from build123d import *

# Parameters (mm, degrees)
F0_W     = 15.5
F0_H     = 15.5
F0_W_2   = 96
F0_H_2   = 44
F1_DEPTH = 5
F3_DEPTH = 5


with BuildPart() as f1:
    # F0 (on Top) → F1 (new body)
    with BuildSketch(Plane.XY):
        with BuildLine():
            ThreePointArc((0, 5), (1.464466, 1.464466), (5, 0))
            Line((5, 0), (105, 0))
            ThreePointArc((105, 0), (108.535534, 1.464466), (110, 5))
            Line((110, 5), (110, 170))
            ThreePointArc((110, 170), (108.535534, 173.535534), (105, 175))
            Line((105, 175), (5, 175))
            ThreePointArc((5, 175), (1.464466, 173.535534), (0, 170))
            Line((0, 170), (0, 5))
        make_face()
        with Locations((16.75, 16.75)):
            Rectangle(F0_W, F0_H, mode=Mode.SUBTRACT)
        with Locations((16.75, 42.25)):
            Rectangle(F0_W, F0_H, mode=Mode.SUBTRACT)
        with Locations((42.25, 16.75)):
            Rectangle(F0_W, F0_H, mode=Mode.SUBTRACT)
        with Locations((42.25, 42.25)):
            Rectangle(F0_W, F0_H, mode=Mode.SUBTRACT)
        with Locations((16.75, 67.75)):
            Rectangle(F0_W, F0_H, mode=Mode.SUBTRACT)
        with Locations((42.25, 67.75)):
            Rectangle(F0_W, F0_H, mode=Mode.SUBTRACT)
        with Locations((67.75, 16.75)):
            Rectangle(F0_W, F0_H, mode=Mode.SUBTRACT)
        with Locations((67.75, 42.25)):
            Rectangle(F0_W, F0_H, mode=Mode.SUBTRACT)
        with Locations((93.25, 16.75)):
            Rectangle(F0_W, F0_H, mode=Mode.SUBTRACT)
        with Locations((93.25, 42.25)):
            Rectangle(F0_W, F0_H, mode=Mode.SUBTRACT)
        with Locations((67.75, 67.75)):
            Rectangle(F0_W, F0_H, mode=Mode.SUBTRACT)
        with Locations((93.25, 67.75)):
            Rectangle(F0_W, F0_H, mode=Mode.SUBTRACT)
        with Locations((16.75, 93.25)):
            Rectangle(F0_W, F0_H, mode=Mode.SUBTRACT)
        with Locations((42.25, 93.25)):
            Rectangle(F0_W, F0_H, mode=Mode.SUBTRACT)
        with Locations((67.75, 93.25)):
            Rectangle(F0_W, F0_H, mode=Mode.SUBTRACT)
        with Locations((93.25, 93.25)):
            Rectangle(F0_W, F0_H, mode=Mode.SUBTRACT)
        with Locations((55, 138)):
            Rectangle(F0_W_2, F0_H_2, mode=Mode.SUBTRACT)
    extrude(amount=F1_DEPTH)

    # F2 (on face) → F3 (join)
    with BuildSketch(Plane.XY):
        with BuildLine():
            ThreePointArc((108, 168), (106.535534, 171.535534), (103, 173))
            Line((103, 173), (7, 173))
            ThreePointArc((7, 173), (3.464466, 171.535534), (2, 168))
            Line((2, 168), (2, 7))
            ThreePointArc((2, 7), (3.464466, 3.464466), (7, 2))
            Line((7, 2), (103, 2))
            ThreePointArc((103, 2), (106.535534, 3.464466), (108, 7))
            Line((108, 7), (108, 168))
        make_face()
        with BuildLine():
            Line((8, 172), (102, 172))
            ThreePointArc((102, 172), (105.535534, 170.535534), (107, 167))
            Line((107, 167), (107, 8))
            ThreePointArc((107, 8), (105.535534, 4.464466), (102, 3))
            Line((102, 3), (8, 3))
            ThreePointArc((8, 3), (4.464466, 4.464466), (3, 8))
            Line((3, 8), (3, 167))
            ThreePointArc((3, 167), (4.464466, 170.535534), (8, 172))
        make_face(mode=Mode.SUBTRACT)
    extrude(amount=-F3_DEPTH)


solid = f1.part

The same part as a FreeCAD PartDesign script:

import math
import FreeCAD as App
import Part
import Sketcher

V = App.Vector
Q = App.Units.Quantity


def add_polygon(sketch, points):
    """Adds a closed chain of lines whose ends are joined by coincident constraints."""
    first, n = sketch.GeometryCount, len(points)
    for a, b in zip(points, points[1:] + points[:1]):
        sketch.addGeometry(Part.LineSegment(App.Vector(*a, 0), App.Vector(*b, 0)), False)
    for i in range(n):
        sketch.addConstraint(Sketcher.Constraint("Coincident", first + i, 2, first + (i + 1) % n, 1))

doc = App.newDocument("Part")
body = doc.addObject("PartDesign::Body", "Body")

# Sketch on XY plane
sketch1 = body.newObject("Sketcher::SketchObject", "Sketch")
sketch1.AttachmentSupport = (doc.getObject("XY_Plane"), [""])
sketch1.MapMode = "FlatFace"
sketch1.addGeometry(Part.ArcOfCircle(Part.Circle(V(5, 5, 0), V(0, 0, 1), 5), math.radians(179.999996), math.radians(270.000004)), False)  # 0
sketch1.addGeometry(Part.LineSegment(V(5, 0, 0), V(105, 0, 0)), False)  # 1
sketch1.addGeometry(Part.ArcOfCircle(Part.Circle(V(105, 5, 0), V(0, 0, 1), 5), math.radians(-90.000004), math.radians(0.000004)), False)  # 2
sketch1.addGeometry(Part.LineSegment(V(110, 5, 0), V(110, 170, 0)), False)  # 3
sketch1.addGeometry(Part.ArcOfCircle(Part.Circle(V(105, 170, 0), V(0, 0, 1), 5), math.radians(-0.000004), math.radians(90.000004)), False)  # 4
sketch1.addGeometry(Part.LineSegment(V(105, 175, 0), V(5, 175, 0)), False)  # 5
sketch1.addGeometry(Part.ArcOfCircle(Part.Circle(V(5, 170, 0), V(0, 0, 1), 5), math.radians(89.999996), math.radians(180.000004)), False)  # 6
sketch1.addGeometry(Part.LineSegment(V(0, 170, 0), V(0, 5, 0)), False)  # 7
add_polygon(sketch1, [(24.5, 9), (9, 9), (9, 24.5), (24.5, 24.5)])  # lines 8-11
add_polygon(sketch1, [(24.5, 34.5), (9, 34.5), (9, 50), (24.5, 50)])  # lines 12-15
add_polygon(sketch1, [(50, 9), (34.5, 9), (34.5, 24.5), (50, 24.5)])  # lines 16-19
add_polygon(sketch1, [(50, 34.5), (34.5, 34.5), (34.5, 50), (50, 50)])  # lines 20-23
add_polygon(sketch1, [(24.5, 60), (9, 60), (9, 75.5), (24.5, 75.5)])  # lines 24-27
add_polygon(sketch1, [(50, 60), (34.5, 60), (34.5, 75.5), (50, 75.5)])  # lines 28-31
add_polygon(sketch1, [(75.5, 9), (60, 9), (60, 24.5), (75.5, 24.5)])  # lines 32-35
add_polygon(sketch1, [(75.5, 34.5), (60, 34.5), (60, 50), (75.5, 50)])  # lines 36-39
add_polygon(sketch1, [(101, 9), (85.5, 9), (85.5, 24.5), (101, 24.5)])  # lines 40-43
add_polygon(sketch1, [(101, 34.5), (85.5, 34.5), (85.5, 50), (101, 50)])  # lines 44-47
add_polygon(sketch1, [(75.5, 60), (60, 60), (60, 75.5), (75.5, 75.5)])  # lines 48-51
add_polygon(sketch1, [(101, 60), (85.5, 60), (85.5, 75.5), (101, 75.5)])  # lines 52-55
add_polygon(sketch1, [(24.5, 85.5), (9, 85.5), (9, 101), (24.5, 101)])  # lines 56-59
add_polygon(sketch1, [(50, 85.5), (34.5, 85.5), (34.5, 101), (50, 101)])  # lines 60-63
add_polygon(sketch1, [(75.5, 85.5), (60, 85.5), (60, 101), (75.5, 101)])  # lines 64-67
add_polygon(sketch1, [(101, 85.5), (85.5, 85.5), (85.5, 101), (101, 101)])  # lines 68-71
add_polygon(sketch1, [(103, 116), (7, 116), (7, 160), (103, 160)])  # lines 72-75
sketch1.addConstraint(Sketcher.Constraint("Tangent", 0, 2, 1, 1))
sketch1.addConstraint(Sketcher.Constraint("Tangent", 1, 2, 2, 1))
sketch1.addConstraint(Sketcher.Constraint("Tangent", 2, 2, 3, 1))
sketch1.addConstraint(Sketcher.Constraint("Tangent", 3, 2, 4, 1))
sketch1.addConstraint(Sketcher.Constraint("Tangent", 4, 2, 5, 1))
sketch1.addConstraint(Sketcher.Constraint("Tangent", 5, 2, 6, 1))
sketch1.addConstraint(Sketcher.Constraint("Tangent", 6, 2, 7, 1))
sketch1.addConstraint(Sketcher.Constraint("Tangent", 7, 2, 0, 1))
sketch1.addConstraint(Sketcher.Constraint("Horizontal", 1))
sketch1.addConstraint(Sketcher.Constraint("Vertical", 3))
sketch1.addConstraint(Sketcher.Constraint("Horizontal", 5))
sketch1.addConstraint(Sketcher.Constraint("Vertical", 7))
sketch1.addConstraint(Sketcher.Constraint("Horizontal", 8))
sketch1.addConstraint(Sketcher.Constraint("Vertical", 9))
sketch1.addConstraint(Sketcher.Constraint("Horizontal", 10))
sketch1.addConstraint(Sketcher.Constraint("Vertical", 11))
sketch1.addConstraint(Sketcher.Constraint("Horizontal", 12))
sketch1.addConstraint(Sketcher.Constraint("Vertical", 13))
sketch1.addConstraint(Sketcher.Constraint("Horizontal", 14))
sketch1.addConstraint(Sketcher.Constraint("Vertical", 15))
sketch1.addConstraint(Sketcher.Constraint("Horizontal", 16))
sketch1.addConstraint(Sketcher.Constraint("Vertical", 17))
sketch1.addConstraint(Sketcher.Constraint("Horizontal", 18))
sketch1.addConstraint(Sketcher.Constraint("Vertical", 19))
sketch1.addConstraint(Sketcher.Constraint("Horizontal", 20))
sketch1.addConstraint(Sketcher.Constraint("Vertical", 21))
sketch1.addConstraint(Sketcher.Constraint("Horizontal", 22))
sketch1.addConstraint(Sketcher.Constraint("Vertical", 23))
sketch1.addConstraint(Sketcher.Constraint("Horizontal", 24))
sketch1.addConstraint(Sketcher.Constraint("Vertical", 25))
sketch1.addConstraint(Sketcher.Constraint("Horizontal", 26))
sketch1.addConstraint(Sketcher.Constraint("Vertical", 27))
sketch1.addConstraint(Sketcher.Constraint("Horizontal", 28))
sketch1.addConstraint(Sketcher.Constraint("Vertical", 29))
sketch1.addConstraint(Sketcher.Constraint("Horizontal", 30))
sketch1.addConstraint(Sketcher.Constraint("Vertical", 31))
sketch1.addConstraint(Sketcher.Constraint("Horizontal", 32))
sketch1.addConstraint(Sketcher.Constraint("Vertical", 33))
sketch1.addConstraint(Sketcher.Constraint("Horizontal", 34))
sketch1.addConstraint(Sketcher.Constraint("Vertical", 35))
sketch1.addConstraint(Sketcher.Constraint("Horizontal", 36))
sketch1.addConstraint(Sketcher.Constraint("Vertical", 37))
sketch1.addConstraint(Sketcher.Constraint("Horizontal", 38))
sketch1.addConstraint(Sketcher.Constraint("Vertical", 39))
sketch1.addConstraint(Sketcher.Constraint("Horizontal", 40))
sketch1.addConstraint(Sketcher.Constraint("Vertical", 41))
sketch1.addConstraint(Sketcher.Constraint("Horizontal", 42))
sketch1.addConstraint(Sketcher.Constraint("Vertical", 43))
sketch1.addConstraint(Sketcher.Constraint("Horizontal", 44))
sketch1.addConstraint(Sketcher.Constraint("Vertical", 45))
sketch1.addConstraint(Sketcher.Constraint("Horizontal", 46))
sketch1.addConstraint(Sketcher.Constraint("Vertical", 47))
sketch1.addConstraint(Sketcher.Constraint("Horizontal", 48))
sketch1.addConstraint(Sketcher.Constraint("Vertical", 49))
sketch1.addConstraint(Sketcher.Constraint("Horizontal", 50))
sketch1.addConstraint(Sketcher.Constraint("Vertical", 51))
sketch1.addConstraint(Sketcher.Constraint("Horizontal", 52))
sketch1.addConstraint(Sketcher.Constraint("Vertical", 53))
sketch1.addConstraint(Sketcher.Constraint("Horizontal", 54))
sketch1.addConstraint(Sketcher.Constraint("Vertical", 55))
sketch1.addConstraint(Sketcher.Constraint("Horizontal", 56))
sketch1.addConstraint(Sketcher.Constraint("Vertical", 57))
sketch1.addConstraint(Sketcher.Constraint("Horizontal", 58))
sketch1.addConstraint(Sketcher.Constraint("Vertical", 59))
sketch1.addConstraint(Sketcher.Constraint("Horizontal", 60))
sketch1.addConstraint(Sketcher.Constraint("Vertical", 61))
sketch1.addConstraint(Sketcher.Constraint("Horizontal", 62))
sketch1.addConstraint(Sketcher.Constraint("Vertical", 63))
sketch1.addConstraint(Sketcher.Constraint("Horizontal", 64))
sketch1.addConstraint(Sketcher.Constraint("Vertical", 65))
sketch1.addConstraint(Sketcher.Constraint("Horizontal", 66))
sketch1.addConstraint(Sketcher.Constraint("Vertical", 67))
sketch1.addConstraint(Sketcher.Constraint("Horizontal", 68))
sketch1.addConstraint(Sketcher.Constraint("Vertical", 69))
sketch1.addConstraint(Sketcher.Constraint("Horizontal", 70))
sketch1.addConstraint(Sketcher.Constraint("Vertical", 71))
sketch1.addConstraint(Sketcher.Constraint("Horizontal", 72))
sketch1.addConstraint(Sketcher.Constraint("Vertical", 73))
sketch1.addConstraint(Sketcher.Constraint("Horizontal", 74))
sketch1.addConstraint(Sketcher.Constraint("Vertical", 75))
sketch1.addConstraint(Sketcher.Constraint("Equal", 0, 2))
sketch1.addConstraint(Sketcher.Constraint("Equal", 2, 4))
sketch1.addConstraint(Sketcher.Constraint("Equal", 4, 6))
sketch1.addConstraint(Sketcher.Constraint("PointOnObject", 0, 2, -1))
sketch1.addConstraint(Sketcher.Constraint("PointOnObject", 6, 2, -2))
sketch1.addConstraint(Sketcher.Constraint("Horizontal", 11, 2, 16, 2))
sketch1.addConstraint(Sketcher.Constraint("Horizontal", 10, 2, 17, 2))
sketch1.addConstraint(Sketcher.Constraint("Horizontal", 15, 2, 20, 2))
sketch1.addConstraint(Sketcher.Constraint("Horizontal", 14, 2, 21, 2))
sketch1.addConstraint(Sketcher.Constraint("Horizontal", 27, 2, 28, 2))
sketch1.addConstraint(Sketcher.Constraint("Horizontal", 26, 2, 29, 2))
sketch1.addConstraint(Sketcher.Constraint("Horizontal", 19, 2, 32, 2))
sketch1.addConstraint(Sketcher.Constraint("Horizontal", 18, 2, 33, 2))
sketch1.addConstraint(Sketcher.Constraint("Horizontal", 23, 2, 36, 2))
sketch1.addConstraint(Sketcher.Constraint("Horizontal", 22, 2, 37, 2))
sketch1.addConstraint(Sketcher.Constraint("Horizontal", 35, 2, 40, 2))
sketch1.addConstraint(Sketcher.Constraint("Horizontal", 34, 2, 41, 2))
sketch1.addConstraint(Sketcher.Constraint("Horizontal", 39, 2, 44, 2))
sketch1.addConstraint(Sketcher.Constraint("Horizontal", 38, 2, 45, 2))
sketch1.addConstraint(Sketcher.Constraint("Horizontal", 31, 2, 48, 2))
sketch1.addConstraint(Sketcher.Constraint("Horizontal", 30, 2, 49, 2))
sketch1.addConstraint(Sketcher.Constraint("Horizontal", 51, 2, 52, 2))
sketch1.addConstraint(Sketcher.Constraint("Horizontal", 50, 2, 53, 2))
sketch1.addConstraint(Sketcher.Constraint("Horizontal", 59, 2, 60, 2))
sketch1.addConstraint(Sketcher.Constraint("Horizontal", 58, 2, 61, 2))
sketch1.addConstraint(Sketcher.Constraint("Horizontal", 63, 2, 64, 2))
sketch1.addConstraint(Sketcher.Constraint("Horizontal", 62, 2, 65, 2))
sketch1.addConstraint(Sketcher.Constraint("Horizontal", 67, 2, 68, 2))
sketch1.addConstraint(Sketcher.Constraint("Horizontal", 66, 2, 69, 2))
sketch1.addConstraint(Sketcher.Constraint("Vertical", 9, 2, 12, 2))
sketch1.addConstraint(Sketcher.Constraint("Vertical", 11, 2, 14, 2))
sketch1.addConstraint(Sketcher.Constraint("Vertical", 17, 2, 20, 2))
sketch1.addConstraint(Sketcher.Constraint("Vertical", 19, 2, 22, 2))
sketch1.addConstraint(Sketcher.Constraint("Vertical", 13, 2, 24, 2))
sketch1.addConstraint(Sketcher.Constraint("Vertical", 15, 2, 26, 2))
sketch1.addConstraint(Sketcher.Constraint("Vertical", 21, 2, 28, 2))
sketch1.addConstraint(Sketcher.Constraint("Vertical", 23, 2, 30, 2))
sketch1.addConstraint(Sketcher.Constraint("Vertical", 33, 2, 36, 2))
sketch1.addConstraint(Sketcher.Constraint("Vertical", 35, 2, 38, 2))
sketch1.addConstraint(Sketcher.Constraint("Vertical", 41, 2, 44, 2))
sketch1.addConstraint(Sketcher.Constraint("Vertical", 43, 2, 46, 2))
sketch1.addConstraint(Sketcher.Constraint("Vertical", 37, 2, 48, 2))
sketch1.addConstraint(Sketcher.Constraint("Vertical", 39, 2, 50, 2))
sketch1.addConstraint(Sketcher.Constraint("Vertical", 45, 2, 52, 2))
sketch1.addConstraint(Sketcher.Constraint("Vertical", 47, 2, 54, 2))
sketch1.addConstraint(Sketcher.Constraint("Vertical", 25, 2, 56, 2))
sketch1.addConstraint(Sketcher.Constraint("Vertical", 27, 2, 58, 2))
sketch1.addConstraint(Sketcher.Constraint("Vertical", 29, 2, 60, 2))
sketch1.addConstraint(Sketcher.Constraint("Vertical", 31, 2, 62, 2))
sketch1.addConstraint(Sketcher.Constraint("Vertical", 49, 2, 64, 2))
sketch1.addConstraint(Sketcher.Constraint("Vertical", 51, 2, 66, 2))
sketch1.addConstraint(Sketcher.Constraint("Vertical", 53, 2, 68, 2))
sketch1.addConstraint(Sketcher.Constraint("Vertical", 55, 2, 70, 2))
sketch1.addConstraint(Sketcher.Constraint("Equal", 14, 16))
sketch1.addConstraint(Sketcher.Constraint("Equal", 30, 32))
sketch1.addConstraint(Sketcher.Constraint("Equal", 38, 40))
sketch1.addConstraint(Sketcher.Constraint("Equal", 70, 9))
sketch1.addConstraint(Sketcher.Constraint("Equal", 11, 13))
sketch1.addConstraint(Sketcher.Constraint("Equal", 23, 25))
sketch1.addConstraint(Sketcher.Constraint("Equal", 55, 57))
sketch1.addConstraint(Sketcher.Constraint("Radius", 0, Q("5 mm")))
sketch1.addConstraint(Sketcher.Constraint("DistanceX", 1, 1, 1, 2, Q("100 mm")))
sketch1.addConstraint(Sketcher.Constraint("DistanceX", 72, 2, 72, 1, Q("96 mm")))
sketch1.addConstraint(Sketcher.Constraint("DistanceY", 3, 1, 3, 2, Q("165 mm")))
sketch1.addConstraint(Sketcher.Constraint("DistanceY", 73, 1, 73, 2, Q("44 mm")))
sketch1.addConstraint(Sketcher.Constraint("DistanceX", 8, 2, 8, 1, Q("15.5 mm")))
sketch1.addConstraint(Sketcher.Constraint("DistanceX", -1, 1, 8, 2, Q("9 mm")))
sketch1.addConstraint(Sketcher.Constraint("DistanceY", -1, 1, 8, 2, Q("9 mm")))
sketch1.addConstraint(Sketcher.Constraint("DistanceY", -1, 1, 13, 2, Q("50 mm")))
sketch1.addConstraint(Sketcher.Constraint("DistanceX", -1, 1, 18, 2, Q("50 mm")))
sketch1.addConstraint(Sketcher.Constraint("DistanceY", -1, 1, 24, 2, Q("60 mm")))
sketch1.addConstraint(Sketcher.Constraint("DistanceX", -1, 1, 32, 2, Q("60 mm")))
sketch1.addConstraint(Sketcher.Constraint("DistanceX", -1, 1, 42, 2, Q("101 mm")))
sketch1.addConstraint(Sketcher.Constraint("DistanceY", -1, 1, 57, 2, Q("101 mm")))
sketch1.addConstraint(Sketcher.Constraint("DistanceX", -1, 1, 72, 2, Q("7 mm")))
sketch1.addConstraint(Sketcher.Constraint("DistanceY", -1, 1, 72, 2, Q("116 mm")))
pad1 = body.newObject("PartDesign::Pad", "Pad")
pad1.Profile = sketch1
pad1.Length = 5

# Sketch on XY plane
sketch2 = body.newObject("Sketcher::SketchObject", "Sketch001")
sketch2.AttachmentSupport = (doc.getObject("XY_Plane"), [""])
sketch2.MapMode = "FlatFace"
sketch2.addGeometry(Part.ArcOfCircle(Part.Circle(V(103, 168, 0), V(0, 0, 1), 5), math.radians(-0.000004), math.radians(90.000004)), False)
sketch2.addGeometry(Part.LineSegment(V(103, 173, 0), V(7, 173, 0)), False)
sketch2.addGeometry(Part.ArcOfCircle(Part.Circle(V(7, 168, 0), V(0, 0, 1), 5), math.radians(89.999996), math.radians(180.000004)), False)
sketch2.addGeometry(Part.LineSegment(V(2, 168, 0), V(2, 7, 0)), False)
sketch2.addGeometry(Part.ArcOfCircle(Part.Circle(V(7, 7, 0), V(0, 0, 1), 5), math.radians(179.999996), math.radians(270.000004)), False)
sketch2.addGeometry(Part.LineSegment(V(7, 2, 0), V(103, 2, 0)), False)
sketch2.addGeometry(Part.ArcOfCircle(Part.Circle(V(103, 7, 0), V(0, 0, 1), 5), math.radians(-90.000004), math.radians(0.000004)), False)
sketch2.addGeometry(Part.LineSegment(V(108, 7, 0), V(108, 168, 0)), False)
sketch2.addGeometry(Part.ArcOfCircle(Part.Circle(V(8, 167, 0), V(0, 0, 1), 5), math.radians(89.999996), math.radians(180.000004)), False)
sketch2.addGeometry(Part.LineSegment(V(8, 172, 0), V(102, 172, 0)), False)
sketch2.addGeometry(Part.ArcOfCircle(Part.Circle(V(102, 167, 0), V(0, 0, 1), 5), math.radians(-0.000004), math.radians(90.000004)), False)
sketch2.addGeometry(Part.LineSegment(V(107, 167, 0), V(107, 8, 0)), False)
sketch2.addGeometry(Part.ArcOfCircle(Part.Circle(V(102, 8, 0), V(0, 0, 1), 5), math.radians(-90.000004), math.radians(0.000004)), False)
sketch2.addGeometry(Part.LineSegment(V(102, 3, 0), V(8, 3, 0)), False)
sketch2.addGeometry(Part.ArcOfCircle(Part.Circle(V(8, 8, 0), V(0, 0, 1), 5), math.radians(179.999996), math.radians(270.000004)), False)
sketch2.addGeometry(Part.LineSegment(V(3, 8, 0), V(3, 167, 0)), False)
sketch2.addConstraint(Sketcher.Constraint("Tangent", 0, 2, 1, 1))
sketch2.addConstraint(Sketcher.Constraint("Tangent", 1, 2, 2, 1))
sketch2.addConstraint(Sketcher.Constraint("Tangent", 2, 2, 3, 1))
sketch2.addConstraint(Sketcher.Constraint("Tangent", 3, 2, 4, 1))
sketch2.addConstraint(Sketcher.Constraint("Tangent", 4, 2, 5, 1))
sketch2.addConstraint(Sketcher.Constraint("Tangent", 5, 2, 6, 1))
sketch2.addConstraint(Sketcher.Constraint("Tangent", 6, 2, 7, 1))
sketch2.addConstraint(Sketcher.Constraint("Tangent", 7, 2, 0, 1))
sketch2.addConstraint(Sketcher.Constraint("Tangent", 8, 1, 9, 1))
sketch2.addConstraint(Sketcher.Constraint("Tangent", 9, 2, 10, 2))
sketch2.addConstraint(Sketcher.Constraint("Tangent", 10, 1, 11, 1))
sketch2.addConstraint(Sketcher.Constraint("Tangent", 11, 2, 12, 2))
sketch2.addConstraint(Sketcher.Constraint("Tangent", 12, 1, 13, 1))
sketch2.addConstraint(Sketcher.Constraint("Tangent", 13, 2, 14, 2))
sketch2.addConstraint(Sketcher.Constraint("Tangent", 14, 1, 15, 1))
sketch2.addConstraint(Sketcher.Constraint("Tangent", 15, 2, 8, 2))
sketch2.addConstraint(Sketcher.Constraint("Horizontal", 1))
sketch2.addConstraint(Sketcher.Constraint("Vertical", 3))
sketch2.addConstraint(Sketcher.Constraint("Horizontal", 5))
sketch2.addConstraint(Sketcher.Constraint("Vertical", 7))
sketch2.addConstraint(Sketcher.Constraint("Horizontal", 9))
sketch2.addConstraint(Sketcher.Constraint("Vertical", 11))
sketch2.addConstraint(Sketcher.Constraint("Horizontal", 13))
sketch2.addConstraint(Sketcher.Constraint("Vertical", 15))
sketch2.addConstraint(Sketcher.Constraint("Equal", 0, 2))
sketch2.addConstraint(Sketcher.Constraint("Equal", 2, 4))
sketch2.addConstraint(Sketcher.Constraint("Equal", 4, 6))
sketch2.addConstraint(Sketcher.Constraint("Equal", 6, 8))
sketch2.addConstraint(Sketcher.Constraint("Equal", 8, 10))
sketch2.addConstraint(Sketcher.Constraint("Equal", 10, 12))
sketch2.addConstraint(Sketcher.Constraint("Equal", 12, 14))
sketch2.addConstraint(Sketcher.Constraint("Radius", 0, Q("5 mm")))
sketch2.addConstraint(Sketcher.Constraint("DistanceX", 1, 2, 1, 1, Q("96 mm")))
sketch2.addConstraint(Sketcher.Constraint("DistanceX", 9, 1, 9, 2, Q("94 mm")))
sketch2.addConstraint(Sketcher.Constraint("DistanceY", 3, 2, 3, 1, Q("161 mm")))
sketch2.addConstraint(Sketcher.Constraint("DistanceY", 11, 2, 11, 1, Q("159 mm")))
sketch2.addConstraint(Sketcher.Constraint("DistanceX", -1, 1, 0, 3, Q("103 mm")))
sketch2.addConstraint(Sketcher.Constraint("DistanceY", -1, 1, 0, 3, Q("168 mm")))
sketch2.addConstraint(Sketcher.Constraint("DistanceX", -1, 1, 8, 3, Q("8 mm")))
sketch2.addConstraint(Sketcher.Constraint("DistanceY", -1, 1, 8, 3, Q("167 mm")))
pad2 = body.newObject("PartDesign::Pad", "Pad001")
pad2.Profile = sketch2
pad2.Length = 5
pad2.Reversed = True

doc.recompute()
